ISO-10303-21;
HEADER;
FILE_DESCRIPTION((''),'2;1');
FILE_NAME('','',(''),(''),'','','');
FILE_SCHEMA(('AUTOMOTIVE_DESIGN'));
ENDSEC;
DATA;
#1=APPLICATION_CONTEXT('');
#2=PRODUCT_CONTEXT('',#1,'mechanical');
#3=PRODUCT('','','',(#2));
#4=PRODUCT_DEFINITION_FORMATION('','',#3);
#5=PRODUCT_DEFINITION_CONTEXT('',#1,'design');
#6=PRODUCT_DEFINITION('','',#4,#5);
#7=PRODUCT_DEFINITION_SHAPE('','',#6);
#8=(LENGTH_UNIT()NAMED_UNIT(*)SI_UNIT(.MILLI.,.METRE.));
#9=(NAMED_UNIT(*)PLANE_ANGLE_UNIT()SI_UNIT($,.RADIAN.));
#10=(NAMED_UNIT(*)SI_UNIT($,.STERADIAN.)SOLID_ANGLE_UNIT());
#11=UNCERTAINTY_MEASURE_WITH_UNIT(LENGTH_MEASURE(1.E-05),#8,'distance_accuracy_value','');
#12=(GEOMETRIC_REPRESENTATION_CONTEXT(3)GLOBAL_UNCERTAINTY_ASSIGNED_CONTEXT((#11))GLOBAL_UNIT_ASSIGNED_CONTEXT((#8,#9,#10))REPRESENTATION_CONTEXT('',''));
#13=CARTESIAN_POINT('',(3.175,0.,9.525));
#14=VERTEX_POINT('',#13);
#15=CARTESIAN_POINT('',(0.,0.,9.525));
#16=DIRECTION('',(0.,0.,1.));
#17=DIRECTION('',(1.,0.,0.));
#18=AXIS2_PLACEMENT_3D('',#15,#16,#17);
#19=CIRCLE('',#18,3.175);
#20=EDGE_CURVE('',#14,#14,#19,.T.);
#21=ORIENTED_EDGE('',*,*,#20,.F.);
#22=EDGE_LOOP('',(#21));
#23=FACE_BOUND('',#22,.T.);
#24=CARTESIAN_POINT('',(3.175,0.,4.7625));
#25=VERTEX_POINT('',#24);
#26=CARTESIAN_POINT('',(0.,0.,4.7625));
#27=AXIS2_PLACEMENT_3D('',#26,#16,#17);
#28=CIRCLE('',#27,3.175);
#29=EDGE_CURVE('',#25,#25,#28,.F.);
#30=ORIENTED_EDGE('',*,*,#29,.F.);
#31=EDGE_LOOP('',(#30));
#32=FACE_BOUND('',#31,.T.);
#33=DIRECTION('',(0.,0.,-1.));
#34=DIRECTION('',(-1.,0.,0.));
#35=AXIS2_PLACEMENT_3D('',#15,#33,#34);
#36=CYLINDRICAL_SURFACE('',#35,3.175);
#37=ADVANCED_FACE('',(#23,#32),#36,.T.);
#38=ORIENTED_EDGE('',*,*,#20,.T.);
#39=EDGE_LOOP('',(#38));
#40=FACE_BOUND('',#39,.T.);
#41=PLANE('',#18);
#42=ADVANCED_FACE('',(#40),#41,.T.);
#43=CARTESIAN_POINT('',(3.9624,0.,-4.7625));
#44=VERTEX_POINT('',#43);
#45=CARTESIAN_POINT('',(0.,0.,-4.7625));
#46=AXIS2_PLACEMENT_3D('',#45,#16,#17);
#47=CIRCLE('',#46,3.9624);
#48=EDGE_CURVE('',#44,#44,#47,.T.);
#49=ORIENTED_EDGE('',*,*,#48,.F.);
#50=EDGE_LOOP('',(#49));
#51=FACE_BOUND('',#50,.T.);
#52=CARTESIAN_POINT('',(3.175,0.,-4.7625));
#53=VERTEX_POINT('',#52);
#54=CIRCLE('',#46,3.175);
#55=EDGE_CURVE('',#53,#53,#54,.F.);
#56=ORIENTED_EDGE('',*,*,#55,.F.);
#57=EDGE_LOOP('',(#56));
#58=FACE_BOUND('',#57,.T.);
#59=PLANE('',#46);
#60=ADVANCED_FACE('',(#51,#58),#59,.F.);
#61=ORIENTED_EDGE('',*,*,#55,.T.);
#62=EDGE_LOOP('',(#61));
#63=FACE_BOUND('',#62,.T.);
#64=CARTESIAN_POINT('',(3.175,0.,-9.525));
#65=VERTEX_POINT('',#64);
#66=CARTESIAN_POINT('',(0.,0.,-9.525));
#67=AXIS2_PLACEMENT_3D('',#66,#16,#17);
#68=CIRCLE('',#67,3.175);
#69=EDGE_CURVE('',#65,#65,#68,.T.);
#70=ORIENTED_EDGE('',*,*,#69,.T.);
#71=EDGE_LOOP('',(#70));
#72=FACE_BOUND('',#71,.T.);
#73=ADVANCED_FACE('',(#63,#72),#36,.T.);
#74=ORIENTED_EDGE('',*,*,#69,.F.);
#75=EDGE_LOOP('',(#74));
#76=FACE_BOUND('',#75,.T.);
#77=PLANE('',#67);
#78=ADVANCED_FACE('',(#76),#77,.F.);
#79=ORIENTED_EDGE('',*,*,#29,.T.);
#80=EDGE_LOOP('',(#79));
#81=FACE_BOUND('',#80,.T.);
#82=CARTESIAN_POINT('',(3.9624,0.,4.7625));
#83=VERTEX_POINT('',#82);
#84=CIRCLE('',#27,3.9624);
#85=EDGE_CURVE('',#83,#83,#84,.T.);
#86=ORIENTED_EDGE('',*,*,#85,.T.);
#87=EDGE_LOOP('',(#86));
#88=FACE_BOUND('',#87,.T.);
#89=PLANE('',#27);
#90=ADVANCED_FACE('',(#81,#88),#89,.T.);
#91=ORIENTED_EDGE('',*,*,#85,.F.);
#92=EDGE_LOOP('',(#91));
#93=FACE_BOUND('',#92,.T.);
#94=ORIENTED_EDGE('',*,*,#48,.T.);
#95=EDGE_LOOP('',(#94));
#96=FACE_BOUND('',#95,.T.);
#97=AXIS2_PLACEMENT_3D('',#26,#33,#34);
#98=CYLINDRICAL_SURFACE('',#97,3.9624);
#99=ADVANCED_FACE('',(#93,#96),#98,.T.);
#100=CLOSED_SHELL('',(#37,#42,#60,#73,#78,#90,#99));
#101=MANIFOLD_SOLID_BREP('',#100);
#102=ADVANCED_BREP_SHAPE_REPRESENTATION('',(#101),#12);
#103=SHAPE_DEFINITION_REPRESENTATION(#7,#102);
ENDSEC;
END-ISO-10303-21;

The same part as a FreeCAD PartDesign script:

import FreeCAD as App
import Part
import Sketcher
from FreeCAD import Vector
Q = App.Units.Quantity

doc = App.newDocument("Part")
params = doc.addObject("Spreadsheet::Sheet", "Params")
for row, (alias, value) in enumerate([
    ("sketch1_diameter", "0.312 in"),
    ("pad1_length", "0.375 in"),
    ("sketch2_diameter", "0.25 in"),
    ("pad2_length", "0.75 in"),
], start=1):
    params.set(f"A{row}", alias)
    params.set(f"B{row}", "=" + value)
    params.setAlias(f"B{row}", alias)

body = doc.addObject("PartDesign::Body", "Body")

sketch1 = body.newObject("Sketcher::SketchObject", "Sketch")
sketch1.AttachmentSupport = (doc.getObject("XY_Plane"), [""])
sketch1.MapMode = "FlatFace"
sketch1.addGeometry(Part.Circle(Vector(0, 0, 0), Vector(0, 0, 1), 4), False)
sketch1.addConstraint(Sketcher.Constraint("Coincident", 0, 3, -1, 1))
sketch1.addConstraint(Sketcher.Constraint("Diameter", 0, Q("0.312 in")))
sketch1.setExpression("Constraints[1]", "Params.sketch1_diameter")
pad1 = body.newObject("PartDesign::Pad", "Pad")
pad1.Profile = sketch1
pad1.setExpression("Length", "Params.pad1_length")
pad1.Midplane = True

sketch2 = body.newObject("Sketcher::SketchObject", "Sketch001")
sketch2.AttachmentSupport = (doc.getObject("XY_Plane"), [""])
sketch2.MapMode = "FlatFace"
sketch2.addGeometry(Part.Circle(Vector(0, 0, 0), Vector(0, 0, 1), 3.2), False)
sketch2.addConstraint(Sketcher.Constraint("Coincident", 0, 3, -1, 1))
sketch2.addConstraint(Sketcher.Constraint("Diameter", 0, Q("0.25 in")))
sketch2.setExpression("Constraints[1]", "Params.sketch2_diameter")
pad2 = body.newObject("PartDesign::Pad", "Pad001")
pad2.Profile = sketch2
pad2.setExpression("Length", "Params.pad2_length")
pad2.Midplane = True

doc.recompute()
